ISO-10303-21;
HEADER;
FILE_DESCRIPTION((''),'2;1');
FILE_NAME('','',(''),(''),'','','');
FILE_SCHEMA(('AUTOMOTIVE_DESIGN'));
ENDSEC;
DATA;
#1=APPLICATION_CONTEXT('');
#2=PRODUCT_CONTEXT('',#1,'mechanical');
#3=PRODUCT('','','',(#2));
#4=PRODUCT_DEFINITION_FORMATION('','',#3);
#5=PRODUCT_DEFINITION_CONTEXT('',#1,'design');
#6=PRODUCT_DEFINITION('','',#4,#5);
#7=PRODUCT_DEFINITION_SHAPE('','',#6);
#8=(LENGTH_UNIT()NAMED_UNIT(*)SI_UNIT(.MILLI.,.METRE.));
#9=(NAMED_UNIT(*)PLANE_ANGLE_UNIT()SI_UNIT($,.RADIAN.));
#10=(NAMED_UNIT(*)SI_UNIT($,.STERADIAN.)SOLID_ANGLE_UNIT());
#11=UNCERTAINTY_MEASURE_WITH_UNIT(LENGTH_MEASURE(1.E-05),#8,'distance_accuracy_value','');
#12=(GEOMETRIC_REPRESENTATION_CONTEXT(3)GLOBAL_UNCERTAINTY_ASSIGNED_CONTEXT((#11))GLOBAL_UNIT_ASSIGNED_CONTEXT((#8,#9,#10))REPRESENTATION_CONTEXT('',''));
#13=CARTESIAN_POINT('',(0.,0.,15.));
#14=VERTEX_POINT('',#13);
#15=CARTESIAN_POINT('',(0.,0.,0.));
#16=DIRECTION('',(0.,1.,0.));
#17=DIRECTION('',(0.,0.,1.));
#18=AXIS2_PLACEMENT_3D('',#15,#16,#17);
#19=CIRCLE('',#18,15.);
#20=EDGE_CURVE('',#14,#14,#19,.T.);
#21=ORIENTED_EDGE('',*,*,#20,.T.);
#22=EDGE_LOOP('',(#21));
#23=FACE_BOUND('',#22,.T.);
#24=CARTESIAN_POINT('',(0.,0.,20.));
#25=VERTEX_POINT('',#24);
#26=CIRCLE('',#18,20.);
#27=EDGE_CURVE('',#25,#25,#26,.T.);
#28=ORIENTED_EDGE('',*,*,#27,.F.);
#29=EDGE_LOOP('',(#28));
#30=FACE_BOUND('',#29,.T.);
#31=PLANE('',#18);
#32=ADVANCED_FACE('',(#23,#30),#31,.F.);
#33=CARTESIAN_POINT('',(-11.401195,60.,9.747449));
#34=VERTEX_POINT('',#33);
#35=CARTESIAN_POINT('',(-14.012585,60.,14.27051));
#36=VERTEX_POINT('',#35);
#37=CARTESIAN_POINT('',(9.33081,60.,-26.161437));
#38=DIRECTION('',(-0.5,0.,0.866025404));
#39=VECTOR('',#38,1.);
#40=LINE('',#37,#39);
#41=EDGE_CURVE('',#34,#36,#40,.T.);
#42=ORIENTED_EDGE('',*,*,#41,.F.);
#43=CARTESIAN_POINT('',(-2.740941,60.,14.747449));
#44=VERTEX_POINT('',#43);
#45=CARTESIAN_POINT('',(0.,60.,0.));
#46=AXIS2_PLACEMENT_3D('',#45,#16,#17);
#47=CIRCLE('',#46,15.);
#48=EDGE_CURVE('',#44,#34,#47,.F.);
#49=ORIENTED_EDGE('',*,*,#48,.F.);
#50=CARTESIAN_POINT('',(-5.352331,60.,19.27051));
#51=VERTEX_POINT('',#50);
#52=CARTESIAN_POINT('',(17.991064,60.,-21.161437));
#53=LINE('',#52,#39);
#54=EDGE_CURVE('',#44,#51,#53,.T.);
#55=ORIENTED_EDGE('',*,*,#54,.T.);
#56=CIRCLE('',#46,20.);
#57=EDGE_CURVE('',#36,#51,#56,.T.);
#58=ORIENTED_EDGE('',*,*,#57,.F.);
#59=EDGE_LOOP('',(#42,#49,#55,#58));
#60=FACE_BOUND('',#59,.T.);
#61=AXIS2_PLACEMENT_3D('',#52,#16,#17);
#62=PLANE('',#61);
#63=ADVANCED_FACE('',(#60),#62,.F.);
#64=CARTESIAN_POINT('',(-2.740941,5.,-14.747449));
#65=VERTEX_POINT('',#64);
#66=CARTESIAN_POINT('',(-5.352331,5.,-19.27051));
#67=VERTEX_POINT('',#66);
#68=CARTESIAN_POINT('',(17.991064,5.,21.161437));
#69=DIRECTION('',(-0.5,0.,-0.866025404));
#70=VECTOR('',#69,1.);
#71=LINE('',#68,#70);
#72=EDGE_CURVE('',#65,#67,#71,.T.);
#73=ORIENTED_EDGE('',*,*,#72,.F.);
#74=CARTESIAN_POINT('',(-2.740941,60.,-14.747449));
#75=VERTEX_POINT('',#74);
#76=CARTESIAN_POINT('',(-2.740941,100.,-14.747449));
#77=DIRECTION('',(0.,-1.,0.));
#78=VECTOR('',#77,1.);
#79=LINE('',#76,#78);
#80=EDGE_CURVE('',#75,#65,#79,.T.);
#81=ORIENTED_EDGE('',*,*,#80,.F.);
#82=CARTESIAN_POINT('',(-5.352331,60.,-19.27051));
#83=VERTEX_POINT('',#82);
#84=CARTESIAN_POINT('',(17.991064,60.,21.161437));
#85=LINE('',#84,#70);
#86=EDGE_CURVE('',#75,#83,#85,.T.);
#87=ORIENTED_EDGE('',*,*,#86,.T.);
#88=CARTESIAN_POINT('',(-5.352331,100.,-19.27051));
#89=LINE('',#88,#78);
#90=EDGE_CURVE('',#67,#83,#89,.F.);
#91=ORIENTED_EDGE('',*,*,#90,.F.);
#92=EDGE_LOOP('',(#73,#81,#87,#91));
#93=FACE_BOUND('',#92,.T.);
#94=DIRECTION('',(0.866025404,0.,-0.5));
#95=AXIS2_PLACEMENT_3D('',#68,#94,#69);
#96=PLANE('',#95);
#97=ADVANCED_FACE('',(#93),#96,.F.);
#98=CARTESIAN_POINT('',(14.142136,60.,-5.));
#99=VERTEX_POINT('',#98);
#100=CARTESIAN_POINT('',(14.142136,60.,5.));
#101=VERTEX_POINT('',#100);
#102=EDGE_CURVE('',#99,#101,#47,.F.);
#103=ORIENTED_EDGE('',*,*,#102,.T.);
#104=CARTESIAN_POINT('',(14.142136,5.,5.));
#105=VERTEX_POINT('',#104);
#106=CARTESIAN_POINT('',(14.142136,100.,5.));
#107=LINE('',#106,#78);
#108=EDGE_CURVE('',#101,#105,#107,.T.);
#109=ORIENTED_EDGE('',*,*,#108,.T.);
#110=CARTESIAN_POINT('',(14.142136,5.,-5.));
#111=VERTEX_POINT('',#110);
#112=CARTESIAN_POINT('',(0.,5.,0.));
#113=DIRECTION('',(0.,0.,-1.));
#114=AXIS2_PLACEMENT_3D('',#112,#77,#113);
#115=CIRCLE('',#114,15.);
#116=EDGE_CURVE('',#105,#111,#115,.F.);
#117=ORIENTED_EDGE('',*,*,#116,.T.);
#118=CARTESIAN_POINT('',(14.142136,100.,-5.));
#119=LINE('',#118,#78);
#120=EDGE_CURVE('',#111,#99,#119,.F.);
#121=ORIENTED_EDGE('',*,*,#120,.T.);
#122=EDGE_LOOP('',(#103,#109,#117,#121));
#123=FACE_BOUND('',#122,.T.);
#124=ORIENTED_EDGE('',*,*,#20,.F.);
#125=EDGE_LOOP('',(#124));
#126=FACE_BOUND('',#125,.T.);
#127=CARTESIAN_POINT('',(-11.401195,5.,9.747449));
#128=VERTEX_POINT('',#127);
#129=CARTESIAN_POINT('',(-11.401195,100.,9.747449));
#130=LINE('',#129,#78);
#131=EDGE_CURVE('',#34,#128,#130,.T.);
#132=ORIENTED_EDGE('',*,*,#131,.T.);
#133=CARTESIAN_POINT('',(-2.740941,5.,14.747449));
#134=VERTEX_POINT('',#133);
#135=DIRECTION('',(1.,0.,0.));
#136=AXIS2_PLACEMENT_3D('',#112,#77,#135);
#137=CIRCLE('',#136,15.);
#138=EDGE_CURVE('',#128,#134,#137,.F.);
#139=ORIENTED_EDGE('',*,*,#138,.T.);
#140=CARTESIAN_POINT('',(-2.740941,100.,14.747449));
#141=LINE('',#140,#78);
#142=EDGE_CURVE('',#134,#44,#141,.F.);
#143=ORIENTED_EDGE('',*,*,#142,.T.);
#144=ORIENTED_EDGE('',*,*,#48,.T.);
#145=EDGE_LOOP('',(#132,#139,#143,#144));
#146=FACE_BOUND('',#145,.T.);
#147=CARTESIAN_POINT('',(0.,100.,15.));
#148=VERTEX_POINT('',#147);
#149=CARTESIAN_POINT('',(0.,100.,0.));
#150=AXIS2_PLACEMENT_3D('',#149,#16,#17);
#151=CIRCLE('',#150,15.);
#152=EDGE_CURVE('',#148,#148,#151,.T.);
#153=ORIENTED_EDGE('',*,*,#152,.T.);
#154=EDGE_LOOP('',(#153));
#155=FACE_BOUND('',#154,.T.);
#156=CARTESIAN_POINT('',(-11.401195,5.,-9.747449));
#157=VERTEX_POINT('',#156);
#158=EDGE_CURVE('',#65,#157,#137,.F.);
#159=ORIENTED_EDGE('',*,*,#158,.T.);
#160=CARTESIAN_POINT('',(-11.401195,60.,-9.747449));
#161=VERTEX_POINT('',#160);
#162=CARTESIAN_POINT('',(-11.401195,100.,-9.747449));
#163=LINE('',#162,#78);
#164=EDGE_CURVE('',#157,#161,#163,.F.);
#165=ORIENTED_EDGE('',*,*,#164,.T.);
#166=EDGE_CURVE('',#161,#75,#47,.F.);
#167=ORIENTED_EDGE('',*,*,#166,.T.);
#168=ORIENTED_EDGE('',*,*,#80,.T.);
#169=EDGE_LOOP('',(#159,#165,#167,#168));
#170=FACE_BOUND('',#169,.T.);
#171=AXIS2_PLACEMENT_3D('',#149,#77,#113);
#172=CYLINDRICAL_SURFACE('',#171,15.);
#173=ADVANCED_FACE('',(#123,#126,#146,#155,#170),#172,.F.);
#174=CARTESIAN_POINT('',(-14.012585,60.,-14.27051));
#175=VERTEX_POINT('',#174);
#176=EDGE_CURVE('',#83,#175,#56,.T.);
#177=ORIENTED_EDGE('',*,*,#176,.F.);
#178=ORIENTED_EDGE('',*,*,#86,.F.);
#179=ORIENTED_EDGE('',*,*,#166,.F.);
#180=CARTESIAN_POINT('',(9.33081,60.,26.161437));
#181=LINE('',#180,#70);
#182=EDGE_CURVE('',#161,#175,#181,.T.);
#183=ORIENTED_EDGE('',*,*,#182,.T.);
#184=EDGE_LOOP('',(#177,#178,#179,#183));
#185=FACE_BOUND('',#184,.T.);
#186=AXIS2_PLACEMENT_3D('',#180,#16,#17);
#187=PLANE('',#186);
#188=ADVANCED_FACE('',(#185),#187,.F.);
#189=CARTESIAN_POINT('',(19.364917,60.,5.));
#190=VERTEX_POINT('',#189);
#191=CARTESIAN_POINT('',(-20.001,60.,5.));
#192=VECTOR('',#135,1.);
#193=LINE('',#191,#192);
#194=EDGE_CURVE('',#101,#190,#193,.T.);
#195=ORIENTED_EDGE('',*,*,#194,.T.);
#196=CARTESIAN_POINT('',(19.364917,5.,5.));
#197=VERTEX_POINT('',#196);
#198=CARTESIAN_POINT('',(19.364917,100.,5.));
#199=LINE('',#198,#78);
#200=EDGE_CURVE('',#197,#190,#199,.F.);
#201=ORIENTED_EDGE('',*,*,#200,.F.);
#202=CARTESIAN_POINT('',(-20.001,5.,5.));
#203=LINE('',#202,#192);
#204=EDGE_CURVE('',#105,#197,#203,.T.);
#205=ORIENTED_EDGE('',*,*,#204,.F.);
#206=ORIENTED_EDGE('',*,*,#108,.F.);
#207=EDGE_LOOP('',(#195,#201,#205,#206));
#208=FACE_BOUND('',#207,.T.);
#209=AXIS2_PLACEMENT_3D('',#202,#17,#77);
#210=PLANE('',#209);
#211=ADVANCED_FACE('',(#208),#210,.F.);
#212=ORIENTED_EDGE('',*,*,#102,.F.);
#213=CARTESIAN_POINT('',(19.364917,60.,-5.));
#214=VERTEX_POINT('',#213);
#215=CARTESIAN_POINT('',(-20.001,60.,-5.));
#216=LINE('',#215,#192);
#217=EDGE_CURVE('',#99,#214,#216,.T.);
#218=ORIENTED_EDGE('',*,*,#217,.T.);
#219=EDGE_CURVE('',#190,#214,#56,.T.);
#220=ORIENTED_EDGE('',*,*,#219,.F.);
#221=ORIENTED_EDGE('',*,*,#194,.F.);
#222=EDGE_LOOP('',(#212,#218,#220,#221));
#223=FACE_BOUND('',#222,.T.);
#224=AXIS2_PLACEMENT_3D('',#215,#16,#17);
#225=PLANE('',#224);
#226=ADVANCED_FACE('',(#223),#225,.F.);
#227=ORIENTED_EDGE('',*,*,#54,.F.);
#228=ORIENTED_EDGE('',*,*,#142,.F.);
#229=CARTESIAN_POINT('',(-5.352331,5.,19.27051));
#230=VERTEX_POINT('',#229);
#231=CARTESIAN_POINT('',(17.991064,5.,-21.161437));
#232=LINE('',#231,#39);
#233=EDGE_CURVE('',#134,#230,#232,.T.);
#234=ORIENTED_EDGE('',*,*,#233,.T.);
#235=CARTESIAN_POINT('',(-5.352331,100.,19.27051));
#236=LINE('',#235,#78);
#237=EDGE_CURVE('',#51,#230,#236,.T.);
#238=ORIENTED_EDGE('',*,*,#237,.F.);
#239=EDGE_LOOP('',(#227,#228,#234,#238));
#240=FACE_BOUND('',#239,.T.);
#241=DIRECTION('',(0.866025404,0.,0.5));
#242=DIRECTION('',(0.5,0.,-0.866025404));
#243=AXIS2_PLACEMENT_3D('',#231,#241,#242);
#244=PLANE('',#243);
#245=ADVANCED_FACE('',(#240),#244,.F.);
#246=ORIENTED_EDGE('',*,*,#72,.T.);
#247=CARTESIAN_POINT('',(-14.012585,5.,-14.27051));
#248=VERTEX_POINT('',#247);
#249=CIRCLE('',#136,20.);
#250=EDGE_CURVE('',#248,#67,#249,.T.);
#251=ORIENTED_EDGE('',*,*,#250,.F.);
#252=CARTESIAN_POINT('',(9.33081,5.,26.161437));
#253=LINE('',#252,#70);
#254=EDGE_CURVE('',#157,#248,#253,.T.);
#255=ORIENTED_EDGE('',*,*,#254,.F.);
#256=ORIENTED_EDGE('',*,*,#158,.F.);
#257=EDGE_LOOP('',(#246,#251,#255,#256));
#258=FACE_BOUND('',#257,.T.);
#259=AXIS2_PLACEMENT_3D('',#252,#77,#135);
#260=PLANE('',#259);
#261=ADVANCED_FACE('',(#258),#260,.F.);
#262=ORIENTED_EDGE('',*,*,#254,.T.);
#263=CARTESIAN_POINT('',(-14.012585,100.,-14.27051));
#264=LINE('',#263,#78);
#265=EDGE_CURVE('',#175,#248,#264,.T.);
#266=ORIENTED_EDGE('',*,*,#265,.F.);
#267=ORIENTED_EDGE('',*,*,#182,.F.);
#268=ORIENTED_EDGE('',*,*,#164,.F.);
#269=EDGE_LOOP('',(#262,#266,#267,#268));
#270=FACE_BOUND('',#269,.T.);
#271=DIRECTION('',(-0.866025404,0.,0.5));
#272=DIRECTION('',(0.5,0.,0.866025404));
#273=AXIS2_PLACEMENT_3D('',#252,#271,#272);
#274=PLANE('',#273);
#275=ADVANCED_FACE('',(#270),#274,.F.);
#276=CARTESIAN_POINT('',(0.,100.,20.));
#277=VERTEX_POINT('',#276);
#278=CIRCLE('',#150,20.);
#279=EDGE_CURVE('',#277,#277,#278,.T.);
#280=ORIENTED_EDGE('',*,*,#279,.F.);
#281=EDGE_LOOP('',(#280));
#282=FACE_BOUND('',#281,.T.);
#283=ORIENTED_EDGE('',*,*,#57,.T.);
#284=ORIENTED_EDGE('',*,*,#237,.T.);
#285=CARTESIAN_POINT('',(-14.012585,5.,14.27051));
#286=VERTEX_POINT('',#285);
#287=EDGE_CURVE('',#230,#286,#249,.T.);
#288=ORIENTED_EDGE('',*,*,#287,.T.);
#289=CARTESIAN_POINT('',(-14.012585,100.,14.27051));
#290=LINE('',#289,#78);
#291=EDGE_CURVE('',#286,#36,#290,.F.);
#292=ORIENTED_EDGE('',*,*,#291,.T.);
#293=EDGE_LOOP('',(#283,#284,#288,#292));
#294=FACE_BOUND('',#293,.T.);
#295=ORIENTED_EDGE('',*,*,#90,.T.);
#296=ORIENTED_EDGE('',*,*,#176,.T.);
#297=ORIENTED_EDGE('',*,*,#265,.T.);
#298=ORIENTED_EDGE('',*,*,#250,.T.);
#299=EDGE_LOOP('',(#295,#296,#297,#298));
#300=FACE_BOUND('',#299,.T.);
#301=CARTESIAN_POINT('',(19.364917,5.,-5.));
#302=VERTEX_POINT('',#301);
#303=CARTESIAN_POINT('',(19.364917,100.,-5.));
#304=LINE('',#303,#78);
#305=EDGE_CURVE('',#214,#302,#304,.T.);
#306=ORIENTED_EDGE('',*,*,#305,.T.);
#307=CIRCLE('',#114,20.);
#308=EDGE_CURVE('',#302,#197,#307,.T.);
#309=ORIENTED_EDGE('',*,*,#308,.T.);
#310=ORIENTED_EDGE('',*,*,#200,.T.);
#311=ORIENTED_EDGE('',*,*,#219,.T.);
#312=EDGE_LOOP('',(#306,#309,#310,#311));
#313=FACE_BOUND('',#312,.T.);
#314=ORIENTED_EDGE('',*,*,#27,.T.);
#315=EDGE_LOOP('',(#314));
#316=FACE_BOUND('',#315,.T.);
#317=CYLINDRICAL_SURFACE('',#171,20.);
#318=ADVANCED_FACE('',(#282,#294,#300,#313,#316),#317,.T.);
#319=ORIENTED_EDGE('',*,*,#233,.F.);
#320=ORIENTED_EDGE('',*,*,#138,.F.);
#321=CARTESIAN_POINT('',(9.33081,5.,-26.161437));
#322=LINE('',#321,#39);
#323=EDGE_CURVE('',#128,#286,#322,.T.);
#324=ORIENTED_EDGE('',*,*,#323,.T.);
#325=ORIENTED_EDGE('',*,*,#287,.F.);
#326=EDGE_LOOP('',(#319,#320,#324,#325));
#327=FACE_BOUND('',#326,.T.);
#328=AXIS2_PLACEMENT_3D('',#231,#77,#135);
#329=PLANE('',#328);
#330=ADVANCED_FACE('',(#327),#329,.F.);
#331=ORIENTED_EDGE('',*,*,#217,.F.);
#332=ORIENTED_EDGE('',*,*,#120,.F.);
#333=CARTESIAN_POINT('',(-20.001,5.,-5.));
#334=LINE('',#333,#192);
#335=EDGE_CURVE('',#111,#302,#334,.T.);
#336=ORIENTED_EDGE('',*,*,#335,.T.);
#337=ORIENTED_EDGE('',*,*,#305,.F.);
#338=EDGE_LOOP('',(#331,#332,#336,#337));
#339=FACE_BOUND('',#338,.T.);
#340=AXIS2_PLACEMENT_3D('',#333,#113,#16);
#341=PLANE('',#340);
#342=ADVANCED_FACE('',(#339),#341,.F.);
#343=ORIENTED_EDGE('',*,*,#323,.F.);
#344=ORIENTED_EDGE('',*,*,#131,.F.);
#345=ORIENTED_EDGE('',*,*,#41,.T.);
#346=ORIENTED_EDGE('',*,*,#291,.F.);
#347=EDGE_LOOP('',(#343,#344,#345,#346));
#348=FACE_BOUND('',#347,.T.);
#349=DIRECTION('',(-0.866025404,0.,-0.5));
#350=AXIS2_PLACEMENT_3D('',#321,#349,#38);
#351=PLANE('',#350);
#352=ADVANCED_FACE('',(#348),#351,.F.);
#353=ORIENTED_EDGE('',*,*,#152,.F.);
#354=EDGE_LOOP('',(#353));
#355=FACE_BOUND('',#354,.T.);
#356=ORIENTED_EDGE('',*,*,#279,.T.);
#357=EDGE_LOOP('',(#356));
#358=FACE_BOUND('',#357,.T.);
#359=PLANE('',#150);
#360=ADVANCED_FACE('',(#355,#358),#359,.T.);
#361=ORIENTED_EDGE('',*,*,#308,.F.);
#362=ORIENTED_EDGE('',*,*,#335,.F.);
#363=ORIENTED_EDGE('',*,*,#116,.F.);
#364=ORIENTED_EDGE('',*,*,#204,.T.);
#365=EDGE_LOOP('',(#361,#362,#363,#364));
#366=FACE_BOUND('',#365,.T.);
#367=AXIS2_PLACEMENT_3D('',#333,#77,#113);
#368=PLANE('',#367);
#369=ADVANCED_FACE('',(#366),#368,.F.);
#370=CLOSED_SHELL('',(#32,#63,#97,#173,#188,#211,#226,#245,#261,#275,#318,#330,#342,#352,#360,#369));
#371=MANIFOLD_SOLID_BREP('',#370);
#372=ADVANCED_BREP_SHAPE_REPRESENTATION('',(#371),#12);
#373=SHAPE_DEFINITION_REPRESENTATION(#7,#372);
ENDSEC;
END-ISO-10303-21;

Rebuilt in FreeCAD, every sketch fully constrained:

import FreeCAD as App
import Part
import Sketcher
from FreeCAD import Vector

doc = App.newDocument("Part")
params = doc.addObject("Spreadsheet::Sheet", "Params")
for row, (alias, value) in enumerate([
    ("sketch1_diameter", "40 mm"),
    ("sketch1_diameter2", "30 mm"),
    ("pad1_length", "100 mm"),
    ("sketch2_width", "55 mm"),
    ("sketch2_height", "10 mm"),
    ("pocket1_length", "5.857864 mm"),
], start=1):
    params.set(f"A{row}", alias)
    params.set(f"B{row}", "=" + value)
    params.setAlias(f"B{row}", alias)

body = doc.addObject("PartDesign::Body", "Body")

# Sketch on XZ plane
sketch1 = body.newObject("Sketcher::SketchObject", "Sketch")
sketch1.AttachmentSupport = (doc.getObject("XZ_Plane"), [""])
sketch1.MapMode = "FlatFace"
sketch1.addGeometry(Part.Circle(Vector(0, 0, 0), Vector(0, 0, 1), 20), False)
sketch1.addGeometry(Part.Circle(Vector(0, 0, 0), Vector(0, 0, 1), 15), False)
sketch1.addConstraint(Sketcher.Constraint("Coincident", 0, 3, -1, 1))
sketch1.addConstraint(Sketcher.Constraint("Coincident", 1, 3, -1, 1))
sketch1.addConstraint(Sketcher.Constraint("Diameter", 0, 40.0))
sketch1.addConstraint(Sketcher.Constraint("Diameter", 1, 30.0))
sketch1.setExpression("Constraints[2]", "Params.sketch1_diameter")
sketch1.setExpression("Constraints[3]", "Params.sketch1_diameter2")
pad1 = body.newObject("PartDesign::Pad", "Pad")
pad1.Profile = sketch1
pad1.setExpression("Length", "Params.pad1_length")
pad1.Reversed = True

# Sketch on YZ plane
sketch2 = body.newObject("Sketcher::SketchObject", "Sketch001")
sketch2.AttachmentSupport = (doc.getObject("YZ_Plane"), [""])
sketch2.MapMode = "FlatFace"
sketch2.AttachmentOffset = App.Placement(Vector(0, 0, 20), App.Rotation())
sketch2.addGeometry(Part.LineSegment(Vector(60, 5, 0), Vector(5, 5, 0)), False)
sketch2.addGeometry(Part.LineSegment(Vector(5, 5, 0), Vector(5, -5, 0)), False)
sketch2.addGeometry(Part.LineSegment(Vector(5, -5, 0), Vector(60, -5, 0)), False)
sketch2.addGeometry(Part.LineSegment(Vector(60, -5, 0), Vector(60, 5, 0)), False)
sketch2.addConstraint(Sketcher.Constraint("Coincident", 0, 2, 1, 1))
sketch2.addConstraint(Sketcher.Constraint("Coincident", 1, 2, 2, 1))
sketch2.addConstraint(Sketcher.Constraint("Coincident", 2, 2, 3, 1))
sketch2.addConstraint(Sketcher.Constraint("Coincident", 3, 2, 0, 1))
sketch2.addConstraint(Sketcher.Constraint("Horizontal", 0))
sketch2.addConstraint(Sketcher.Constraint("Vertical", 1))
sketch2.addConstraint(Sketcher.Constraint("Horizontal", 2))
sketch2.addConstraint(Sketcher.Constraint("Vertical", 3))
sketch2.addConstraint(Sketcher.Constraint("DistanceX", 0, 2, 0, 1, 55.0))
sketch2.addConstraint(Sketcher.Constraint("DistanceY", 1, 2, 1, 1, 10.0))
sketch2.addConstraint(Sketcher.Constraint("DistanceX", -1, 1, 0, 2, 5.0))
sketch2.addConstraint(Sketcher.Constraint("DistanceY", -1, 1, 0, 2, 5.0))
sketch2.setExpression("Constraints[8]", "Params.sketch2_width")
sketch2.setExpression("Constraints[9]", "Params.sketch2_height")
pocket1 = body.newObject("PartDesign::Pocket", "Pocket")
pocket1.Profile = sketch2
pocket1.setExpression("Length", "Params.pocket1_length")
doc.recompute()

polarpattern = body.newObject("PartDesign::PolarPattern", "PolarPattern")
polarpattern.Originals = [pocket1]
polarpattern.Axis = (doc.getObject("Y_Axis"), [""])
polarpattern.Angle = 360
polarpattern.Occurrences = 3
body.Tip = polarpattern

doc.recompute()
